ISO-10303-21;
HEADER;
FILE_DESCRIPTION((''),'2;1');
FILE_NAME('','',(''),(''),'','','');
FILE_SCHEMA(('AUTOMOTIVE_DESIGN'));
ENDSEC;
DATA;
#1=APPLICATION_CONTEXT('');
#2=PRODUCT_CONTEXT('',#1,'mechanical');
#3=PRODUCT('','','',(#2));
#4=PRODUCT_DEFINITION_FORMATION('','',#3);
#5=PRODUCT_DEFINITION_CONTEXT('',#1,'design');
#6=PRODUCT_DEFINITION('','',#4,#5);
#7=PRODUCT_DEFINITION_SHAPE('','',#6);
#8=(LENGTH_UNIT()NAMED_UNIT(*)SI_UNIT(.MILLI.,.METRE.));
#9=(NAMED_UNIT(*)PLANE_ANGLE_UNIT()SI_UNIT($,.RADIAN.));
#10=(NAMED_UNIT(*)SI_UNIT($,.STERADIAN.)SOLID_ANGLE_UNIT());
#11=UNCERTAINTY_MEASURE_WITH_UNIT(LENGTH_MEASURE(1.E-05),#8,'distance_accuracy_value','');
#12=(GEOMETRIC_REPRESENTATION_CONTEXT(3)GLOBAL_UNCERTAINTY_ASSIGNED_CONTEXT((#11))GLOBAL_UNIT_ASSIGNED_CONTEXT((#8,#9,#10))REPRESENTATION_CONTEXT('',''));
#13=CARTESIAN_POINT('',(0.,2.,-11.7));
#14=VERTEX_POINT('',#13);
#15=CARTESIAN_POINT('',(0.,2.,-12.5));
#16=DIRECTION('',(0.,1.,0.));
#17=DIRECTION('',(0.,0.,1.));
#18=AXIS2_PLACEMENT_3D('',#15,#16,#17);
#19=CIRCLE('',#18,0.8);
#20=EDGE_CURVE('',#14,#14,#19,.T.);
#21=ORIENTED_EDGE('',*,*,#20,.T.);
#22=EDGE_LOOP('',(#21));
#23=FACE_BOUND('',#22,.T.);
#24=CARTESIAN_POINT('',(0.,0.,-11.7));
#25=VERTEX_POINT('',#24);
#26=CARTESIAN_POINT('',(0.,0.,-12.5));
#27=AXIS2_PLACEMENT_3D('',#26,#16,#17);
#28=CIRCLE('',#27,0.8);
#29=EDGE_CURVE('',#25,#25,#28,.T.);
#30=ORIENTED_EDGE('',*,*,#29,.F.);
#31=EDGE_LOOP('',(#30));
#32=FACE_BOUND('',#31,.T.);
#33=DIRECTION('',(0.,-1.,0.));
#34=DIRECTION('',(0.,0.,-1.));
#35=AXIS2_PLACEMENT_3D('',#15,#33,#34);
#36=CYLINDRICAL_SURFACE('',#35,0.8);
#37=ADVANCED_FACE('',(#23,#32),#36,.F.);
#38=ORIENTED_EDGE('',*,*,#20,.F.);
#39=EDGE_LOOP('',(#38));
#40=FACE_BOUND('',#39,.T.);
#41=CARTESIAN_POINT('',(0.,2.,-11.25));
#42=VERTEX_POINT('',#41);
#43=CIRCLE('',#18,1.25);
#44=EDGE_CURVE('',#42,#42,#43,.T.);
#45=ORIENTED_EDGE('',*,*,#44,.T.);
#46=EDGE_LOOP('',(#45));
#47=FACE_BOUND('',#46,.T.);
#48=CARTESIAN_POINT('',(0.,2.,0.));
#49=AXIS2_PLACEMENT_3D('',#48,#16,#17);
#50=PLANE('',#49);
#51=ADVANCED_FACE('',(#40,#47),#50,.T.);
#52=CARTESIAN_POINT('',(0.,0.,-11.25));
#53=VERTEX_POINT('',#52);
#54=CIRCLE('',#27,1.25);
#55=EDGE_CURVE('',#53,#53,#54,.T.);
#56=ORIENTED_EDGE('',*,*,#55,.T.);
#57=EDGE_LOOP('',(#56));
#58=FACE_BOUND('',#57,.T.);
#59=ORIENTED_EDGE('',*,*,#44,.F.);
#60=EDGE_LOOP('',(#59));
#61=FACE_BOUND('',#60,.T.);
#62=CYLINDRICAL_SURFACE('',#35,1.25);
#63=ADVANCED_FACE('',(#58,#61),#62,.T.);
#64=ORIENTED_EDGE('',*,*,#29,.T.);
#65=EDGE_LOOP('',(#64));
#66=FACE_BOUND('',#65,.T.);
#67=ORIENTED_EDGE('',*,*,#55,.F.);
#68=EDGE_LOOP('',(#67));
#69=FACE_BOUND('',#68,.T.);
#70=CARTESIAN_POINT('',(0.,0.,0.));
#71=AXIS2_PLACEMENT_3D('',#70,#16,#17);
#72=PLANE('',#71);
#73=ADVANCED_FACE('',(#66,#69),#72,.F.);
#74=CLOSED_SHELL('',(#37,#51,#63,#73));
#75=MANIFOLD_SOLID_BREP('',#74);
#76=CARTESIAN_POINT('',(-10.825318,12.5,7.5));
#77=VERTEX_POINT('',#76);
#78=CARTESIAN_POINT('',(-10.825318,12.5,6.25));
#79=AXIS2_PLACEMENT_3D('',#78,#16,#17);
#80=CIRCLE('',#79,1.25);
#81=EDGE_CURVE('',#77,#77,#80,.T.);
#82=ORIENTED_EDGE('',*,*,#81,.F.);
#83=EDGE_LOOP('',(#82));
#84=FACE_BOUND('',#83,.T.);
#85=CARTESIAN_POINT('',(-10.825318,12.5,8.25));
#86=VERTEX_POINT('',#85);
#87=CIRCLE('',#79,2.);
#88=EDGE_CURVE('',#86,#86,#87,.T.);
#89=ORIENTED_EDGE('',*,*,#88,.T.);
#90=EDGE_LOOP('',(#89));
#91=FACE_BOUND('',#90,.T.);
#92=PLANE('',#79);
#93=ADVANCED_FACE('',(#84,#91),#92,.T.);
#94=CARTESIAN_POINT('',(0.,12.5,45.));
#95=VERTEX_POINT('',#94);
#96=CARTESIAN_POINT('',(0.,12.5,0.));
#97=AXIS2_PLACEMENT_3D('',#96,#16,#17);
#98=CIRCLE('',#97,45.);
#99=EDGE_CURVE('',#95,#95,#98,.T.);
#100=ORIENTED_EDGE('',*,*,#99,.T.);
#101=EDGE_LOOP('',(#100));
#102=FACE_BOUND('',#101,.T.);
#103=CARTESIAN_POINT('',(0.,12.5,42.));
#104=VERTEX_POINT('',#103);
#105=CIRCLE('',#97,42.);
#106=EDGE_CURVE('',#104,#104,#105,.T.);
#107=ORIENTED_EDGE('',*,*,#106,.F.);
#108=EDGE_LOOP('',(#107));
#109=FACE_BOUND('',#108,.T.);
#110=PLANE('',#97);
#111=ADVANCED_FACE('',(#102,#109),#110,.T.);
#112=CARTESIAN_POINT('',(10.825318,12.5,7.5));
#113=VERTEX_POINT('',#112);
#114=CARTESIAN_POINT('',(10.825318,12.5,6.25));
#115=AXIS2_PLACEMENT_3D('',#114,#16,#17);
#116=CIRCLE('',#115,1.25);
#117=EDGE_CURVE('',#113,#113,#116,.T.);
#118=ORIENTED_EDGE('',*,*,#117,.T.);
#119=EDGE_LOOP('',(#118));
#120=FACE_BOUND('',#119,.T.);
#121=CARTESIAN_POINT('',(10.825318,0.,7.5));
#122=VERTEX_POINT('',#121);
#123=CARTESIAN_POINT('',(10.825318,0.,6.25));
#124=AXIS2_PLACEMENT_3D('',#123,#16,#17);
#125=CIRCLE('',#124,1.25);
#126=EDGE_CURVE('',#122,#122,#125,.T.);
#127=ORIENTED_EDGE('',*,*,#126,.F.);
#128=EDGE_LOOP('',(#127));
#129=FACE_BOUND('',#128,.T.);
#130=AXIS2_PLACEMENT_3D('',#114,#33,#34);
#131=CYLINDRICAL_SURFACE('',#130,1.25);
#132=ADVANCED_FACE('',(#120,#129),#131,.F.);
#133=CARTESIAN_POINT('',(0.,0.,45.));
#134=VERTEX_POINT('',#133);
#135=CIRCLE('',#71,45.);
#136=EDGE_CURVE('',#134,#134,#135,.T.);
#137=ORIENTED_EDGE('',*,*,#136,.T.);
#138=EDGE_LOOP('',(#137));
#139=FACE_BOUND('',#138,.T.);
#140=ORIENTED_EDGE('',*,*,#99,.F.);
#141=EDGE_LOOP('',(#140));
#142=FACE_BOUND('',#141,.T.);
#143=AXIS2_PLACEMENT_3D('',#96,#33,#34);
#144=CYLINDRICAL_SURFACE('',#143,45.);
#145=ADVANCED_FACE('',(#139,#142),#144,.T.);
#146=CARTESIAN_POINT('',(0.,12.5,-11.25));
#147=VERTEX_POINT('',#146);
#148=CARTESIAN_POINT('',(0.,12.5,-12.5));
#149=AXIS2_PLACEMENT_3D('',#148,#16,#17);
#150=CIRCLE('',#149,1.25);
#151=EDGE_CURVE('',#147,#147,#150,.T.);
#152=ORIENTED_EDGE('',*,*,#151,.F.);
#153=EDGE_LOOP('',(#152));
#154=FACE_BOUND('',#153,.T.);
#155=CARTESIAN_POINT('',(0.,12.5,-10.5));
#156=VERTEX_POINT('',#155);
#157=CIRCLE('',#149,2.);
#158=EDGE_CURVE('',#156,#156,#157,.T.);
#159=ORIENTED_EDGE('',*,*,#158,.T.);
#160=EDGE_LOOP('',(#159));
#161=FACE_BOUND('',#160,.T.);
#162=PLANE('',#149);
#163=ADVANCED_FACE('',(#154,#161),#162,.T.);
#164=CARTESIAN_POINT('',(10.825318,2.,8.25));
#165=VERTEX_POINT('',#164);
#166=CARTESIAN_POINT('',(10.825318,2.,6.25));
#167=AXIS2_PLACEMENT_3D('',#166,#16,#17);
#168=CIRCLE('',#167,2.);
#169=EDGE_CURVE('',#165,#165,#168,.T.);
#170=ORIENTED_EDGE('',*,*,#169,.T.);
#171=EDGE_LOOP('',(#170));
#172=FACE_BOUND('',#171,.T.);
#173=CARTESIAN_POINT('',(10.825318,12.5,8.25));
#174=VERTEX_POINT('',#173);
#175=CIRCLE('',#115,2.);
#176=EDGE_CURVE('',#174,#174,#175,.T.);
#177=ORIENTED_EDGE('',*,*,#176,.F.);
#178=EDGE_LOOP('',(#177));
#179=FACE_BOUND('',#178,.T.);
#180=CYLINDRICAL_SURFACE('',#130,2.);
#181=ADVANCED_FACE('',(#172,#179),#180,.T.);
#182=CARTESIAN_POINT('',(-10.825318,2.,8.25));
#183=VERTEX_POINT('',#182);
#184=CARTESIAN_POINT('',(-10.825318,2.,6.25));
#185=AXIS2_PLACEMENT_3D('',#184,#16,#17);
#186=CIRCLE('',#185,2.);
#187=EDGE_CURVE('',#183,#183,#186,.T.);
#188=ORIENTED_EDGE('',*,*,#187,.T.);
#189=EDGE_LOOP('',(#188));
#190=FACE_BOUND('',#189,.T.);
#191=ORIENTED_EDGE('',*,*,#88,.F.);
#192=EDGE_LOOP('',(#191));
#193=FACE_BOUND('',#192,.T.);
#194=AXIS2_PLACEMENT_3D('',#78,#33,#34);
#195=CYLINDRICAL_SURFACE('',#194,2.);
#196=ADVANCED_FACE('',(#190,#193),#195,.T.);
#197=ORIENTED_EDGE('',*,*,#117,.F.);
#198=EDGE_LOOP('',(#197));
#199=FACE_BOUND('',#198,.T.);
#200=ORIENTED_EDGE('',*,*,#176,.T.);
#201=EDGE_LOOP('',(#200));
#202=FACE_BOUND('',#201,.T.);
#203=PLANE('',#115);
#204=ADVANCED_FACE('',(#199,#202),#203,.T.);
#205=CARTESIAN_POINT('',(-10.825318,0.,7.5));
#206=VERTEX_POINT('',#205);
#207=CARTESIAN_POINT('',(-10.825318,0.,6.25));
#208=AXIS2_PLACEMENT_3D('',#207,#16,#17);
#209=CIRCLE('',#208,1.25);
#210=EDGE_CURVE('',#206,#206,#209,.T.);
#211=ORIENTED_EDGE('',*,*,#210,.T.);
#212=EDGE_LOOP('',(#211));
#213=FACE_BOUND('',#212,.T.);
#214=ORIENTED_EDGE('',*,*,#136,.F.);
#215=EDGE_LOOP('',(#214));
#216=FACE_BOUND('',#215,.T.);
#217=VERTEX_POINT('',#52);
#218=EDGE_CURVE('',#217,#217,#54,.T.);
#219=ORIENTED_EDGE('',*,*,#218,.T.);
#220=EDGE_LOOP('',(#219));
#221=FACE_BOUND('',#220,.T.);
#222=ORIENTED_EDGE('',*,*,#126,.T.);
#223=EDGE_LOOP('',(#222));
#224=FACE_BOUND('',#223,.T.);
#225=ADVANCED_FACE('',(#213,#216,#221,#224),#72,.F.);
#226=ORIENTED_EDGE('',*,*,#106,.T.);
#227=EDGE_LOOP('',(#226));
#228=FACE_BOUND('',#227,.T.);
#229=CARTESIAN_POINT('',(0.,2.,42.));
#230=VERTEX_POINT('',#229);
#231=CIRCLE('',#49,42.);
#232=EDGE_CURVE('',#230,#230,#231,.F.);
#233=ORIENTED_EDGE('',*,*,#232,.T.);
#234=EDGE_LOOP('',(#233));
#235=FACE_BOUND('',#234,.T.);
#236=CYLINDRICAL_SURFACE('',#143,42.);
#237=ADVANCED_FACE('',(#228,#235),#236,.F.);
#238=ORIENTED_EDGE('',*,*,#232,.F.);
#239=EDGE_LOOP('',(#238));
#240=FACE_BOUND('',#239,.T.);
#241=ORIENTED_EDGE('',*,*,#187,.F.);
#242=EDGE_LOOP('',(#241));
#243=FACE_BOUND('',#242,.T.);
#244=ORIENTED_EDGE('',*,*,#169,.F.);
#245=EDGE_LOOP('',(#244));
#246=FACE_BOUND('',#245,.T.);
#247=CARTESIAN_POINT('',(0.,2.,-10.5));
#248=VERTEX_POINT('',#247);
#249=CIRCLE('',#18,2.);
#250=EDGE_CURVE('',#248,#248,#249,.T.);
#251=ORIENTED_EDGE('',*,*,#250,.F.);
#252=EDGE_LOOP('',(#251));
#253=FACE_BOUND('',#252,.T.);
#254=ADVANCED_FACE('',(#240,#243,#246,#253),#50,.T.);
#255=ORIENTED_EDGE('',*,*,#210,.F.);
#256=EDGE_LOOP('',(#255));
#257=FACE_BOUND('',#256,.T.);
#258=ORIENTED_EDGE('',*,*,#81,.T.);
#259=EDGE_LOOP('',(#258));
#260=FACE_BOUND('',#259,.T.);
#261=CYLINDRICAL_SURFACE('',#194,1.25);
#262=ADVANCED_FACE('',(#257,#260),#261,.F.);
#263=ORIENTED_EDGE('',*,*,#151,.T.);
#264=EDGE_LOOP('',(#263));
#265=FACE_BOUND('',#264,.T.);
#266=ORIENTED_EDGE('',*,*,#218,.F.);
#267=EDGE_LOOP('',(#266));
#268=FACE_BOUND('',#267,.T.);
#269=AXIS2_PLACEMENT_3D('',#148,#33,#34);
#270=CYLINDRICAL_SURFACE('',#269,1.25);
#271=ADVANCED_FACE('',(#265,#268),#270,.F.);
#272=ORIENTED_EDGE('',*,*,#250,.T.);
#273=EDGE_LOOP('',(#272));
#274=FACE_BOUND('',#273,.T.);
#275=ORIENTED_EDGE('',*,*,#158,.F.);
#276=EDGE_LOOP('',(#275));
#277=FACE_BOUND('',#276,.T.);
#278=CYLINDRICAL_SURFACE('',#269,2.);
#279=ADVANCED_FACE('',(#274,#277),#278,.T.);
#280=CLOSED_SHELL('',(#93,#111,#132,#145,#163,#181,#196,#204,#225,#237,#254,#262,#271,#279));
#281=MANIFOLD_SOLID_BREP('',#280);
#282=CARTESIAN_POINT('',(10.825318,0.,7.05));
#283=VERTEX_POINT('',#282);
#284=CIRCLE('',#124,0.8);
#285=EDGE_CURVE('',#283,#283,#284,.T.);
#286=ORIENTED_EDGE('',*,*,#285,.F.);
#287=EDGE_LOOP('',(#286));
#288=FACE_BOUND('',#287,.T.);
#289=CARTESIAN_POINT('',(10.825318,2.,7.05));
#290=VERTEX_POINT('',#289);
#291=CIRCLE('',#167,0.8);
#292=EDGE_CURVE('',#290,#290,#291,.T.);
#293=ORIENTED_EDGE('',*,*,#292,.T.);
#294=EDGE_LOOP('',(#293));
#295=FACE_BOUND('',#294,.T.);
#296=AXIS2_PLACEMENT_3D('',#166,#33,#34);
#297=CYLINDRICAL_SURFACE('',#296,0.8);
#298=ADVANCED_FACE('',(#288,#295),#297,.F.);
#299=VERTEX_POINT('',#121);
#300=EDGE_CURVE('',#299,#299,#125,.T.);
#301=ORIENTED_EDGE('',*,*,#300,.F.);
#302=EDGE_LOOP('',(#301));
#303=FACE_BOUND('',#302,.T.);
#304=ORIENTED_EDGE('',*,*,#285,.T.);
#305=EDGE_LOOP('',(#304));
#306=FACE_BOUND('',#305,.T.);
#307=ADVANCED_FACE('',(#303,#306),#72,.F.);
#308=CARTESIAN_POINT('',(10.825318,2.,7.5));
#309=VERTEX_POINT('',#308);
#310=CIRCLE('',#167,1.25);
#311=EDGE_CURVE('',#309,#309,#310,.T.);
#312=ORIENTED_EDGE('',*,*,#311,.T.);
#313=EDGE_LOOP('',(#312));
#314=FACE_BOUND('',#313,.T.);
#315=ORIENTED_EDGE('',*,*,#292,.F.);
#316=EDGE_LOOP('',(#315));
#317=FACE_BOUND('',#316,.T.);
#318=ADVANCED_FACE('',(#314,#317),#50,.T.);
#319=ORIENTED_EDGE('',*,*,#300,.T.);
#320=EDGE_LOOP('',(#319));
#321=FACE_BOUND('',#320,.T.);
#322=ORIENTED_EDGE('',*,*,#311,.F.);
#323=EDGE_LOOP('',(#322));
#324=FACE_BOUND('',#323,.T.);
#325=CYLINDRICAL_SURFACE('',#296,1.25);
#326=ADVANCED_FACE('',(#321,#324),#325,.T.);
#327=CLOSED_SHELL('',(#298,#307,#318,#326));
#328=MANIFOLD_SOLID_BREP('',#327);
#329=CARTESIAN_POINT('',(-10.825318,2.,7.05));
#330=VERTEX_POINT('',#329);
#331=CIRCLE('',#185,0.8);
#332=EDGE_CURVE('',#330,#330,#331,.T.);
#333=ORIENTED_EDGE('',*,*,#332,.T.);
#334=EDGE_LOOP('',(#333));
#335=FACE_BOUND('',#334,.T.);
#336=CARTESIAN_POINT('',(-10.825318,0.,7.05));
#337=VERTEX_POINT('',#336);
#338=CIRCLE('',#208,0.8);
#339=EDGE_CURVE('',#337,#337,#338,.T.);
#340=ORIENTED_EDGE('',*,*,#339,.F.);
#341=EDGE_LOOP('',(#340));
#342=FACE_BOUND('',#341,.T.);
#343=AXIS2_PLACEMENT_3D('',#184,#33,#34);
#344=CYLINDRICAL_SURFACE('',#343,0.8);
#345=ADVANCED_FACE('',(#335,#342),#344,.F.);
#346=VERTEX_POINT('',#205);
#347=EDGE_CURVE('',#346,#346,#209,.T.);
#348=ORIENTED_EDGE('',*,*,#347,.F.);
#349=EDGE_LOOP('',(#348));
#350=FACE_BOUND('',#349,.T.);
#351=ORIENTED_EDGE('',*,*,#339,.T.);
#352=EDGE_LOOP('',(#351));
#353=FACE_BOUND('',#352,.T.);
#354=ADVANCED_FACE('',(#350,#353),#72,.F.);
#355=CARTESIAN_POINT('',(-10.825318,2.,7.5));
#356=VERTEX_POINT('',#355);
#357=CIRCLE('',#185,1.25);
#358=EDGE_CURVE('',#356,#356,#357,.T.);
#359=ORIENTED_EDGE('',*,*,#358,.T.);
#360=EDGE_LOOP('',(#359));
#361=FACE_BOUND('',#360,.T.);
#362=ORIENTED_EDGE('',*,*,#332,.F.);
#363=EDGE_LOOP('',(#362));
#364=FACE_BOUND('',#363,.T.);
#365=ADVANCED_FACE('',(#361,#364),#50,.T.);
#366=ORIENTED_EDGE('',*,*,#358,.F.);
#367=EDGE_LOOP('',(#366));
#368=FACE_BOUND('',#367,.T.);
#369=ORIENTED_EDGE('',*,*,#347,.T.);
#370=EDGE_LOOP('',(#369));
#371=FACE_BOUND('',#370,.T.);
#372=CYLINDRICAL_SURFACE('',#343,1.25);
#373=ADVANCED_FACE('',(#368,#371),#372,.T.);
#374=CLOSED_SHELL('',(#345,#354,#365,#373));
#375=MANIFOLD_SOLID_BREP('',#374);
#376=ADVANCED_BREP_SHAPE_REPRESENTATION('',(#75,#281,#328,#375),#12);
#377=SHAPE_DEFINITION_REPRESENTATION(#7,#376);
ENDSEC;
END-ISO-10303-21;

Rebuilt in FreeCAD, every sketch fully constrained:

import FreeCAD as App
import Part
import Sketcher

doc = App.newDocument("Part")
body = doc.addObject("PartDesign::Body", "Body")

# Sketch on XZ plane
sketch1 = body.newObject("Sketcher::SketchObject", "Sketch")
sketch1.AttachmentSupport = (doc.getObject("XZ_Plane"), [""])
sketch1.MapMode = "FlatFace"
sketch1.addGeometry(Part.Circle(App.Vector(0, 0, 0), App.Vector(0, 0, 1), 42), False)
sketch1.addGeometry(Part.Circle(App.Vector(0, -12.5, 0), App.Vector(0, 0, 1), 2), False)
sketch1.addGeometry(Part.Circle(App.Vector(-10.8, 6.2, 0), App.Vector(0, 0, 1), 2), False)
sketch1.addGeometry(Part.Circle(App.Vector(10.8, 6.2, 0), App.Vector(0, 0, 1), 2), False)
sketch1.addConstraint(Sketcher.Constraint("Coincident", 0, 3, -1, 1))
sketch1.addConstraint(Sketcher.Constraint("Equal", 1, 2))
sketch1.addConstraint(Sketcher.Constraint("Equal", 2, 3))
sketch1.addConstraint(Sketcher.Constraint("Symmetric", 2, 3, 3, 3, -2))
sketch1.addConstraint(Sketcher.Constraint("PointOnObject", 1, 3, -2))
sketch1.addConstraint(Sketcher.Constraint("Diameter", 0, 84.0))
sketch1.addConstraint(Sketcher.Constraint("Diameter", 1, 4.0))
sketch1.addConstraint(Sketcher.Constraint("DistanceY", 1, 3, -1, 1, 12.5))
sketch1.addConstraint(Sketcher.Constraint("DistanceY", -1, 1, 2, 3, 6.25))
sketch1.addConstraint(Sketcher.Constraint("DistanceX", 2, 3, -1, 1, 10.825318))
pad1 = body.newObject("PartDesign::Pad", "Pad")
pad1.Profile = sketch1
pad1.Length = 2
pad1.Reversed = True

# Sketch on XZ plane
sketch2 = body.newObject("Sketcher::SketchObject", "Sketch001")
sketch2.AttachmentSupport = (doc.getObject("XZ_Plane"), [""])
sketch2.MapMode = "FlatFace"
sketch2.addGeometry(Part.Circle(App.Vector(0, 0, 0), App.Vector(0, 0, 1), 45), False)
sketch2.addGeometry(Part.Circle(App.Vector(0, 0, 0), App.Vector(0, 0, 1), 42), False)
sketch2.addGeometry(Part.Circle(App.Vector(-10.8, 6.2, 0), App.Vector(0, 0, 1), 2), False)
sketch2.addGeometry(Part.Circle(App.Vector(-10.8, 6.2, 0), App.Vector(0, 0, 1), 1.2), False)
sketch2.addGeometry(Part.Circle(App.Vector(10.8, 6.2, 0), App.Vector(0, 0, 1), 2), False)
sketch2.addGeometry(Part.Circle(App.Vector(10.8, 6.2, 0), App.Vector(0, 0, 1), 1.2), False)
sketch2.addGeometry(Part.Circle(App.Vector(0, -12.5, 0), App.Vector(0, 0, 1), 2), False)
sketch2.addGeometry(Part.Circle(App.Vector(0, -12.5, 0), App.Vector(0, 0, 1), 1.2), False)
sketch2.addConstraint(Sketcher.Constraint("Coincident", 0, 3, -1, 1))
sketch2.addConstraint(Sketcher.Constraint("Coincident", 1, 3, -1, 1))
sketch2.addConstraint(Sketcher.Constraint("Coincident", 3, 3, 2, 3))
sketch2.addConstraint(Sketcher.Constraint("Coincident", 5, 3, 4, 3))
sketch2.addConstraint(Sketcher.Constraint("Coincident", 7, 3, 6, 3))
sketch2.addConstraint(Sketcher.Constraint("Equal", 2, 4))
sketch2.addConstraint(Sketcher.Constraint("Equal", 3, 5))
sketch2.addConstraint(Sketcher.Constraint("Equal", 4, 6))
sketch2.addConstraint(Sketcher.Constraint("Equal", 5, 7))
sketch2.addConstraint(Sketcher.Constraint("Symmetric", 2, 3, 4, 3, -2))
sketch2.addConstraint(Sketcher.Constraint("PointOnObject", 6, 3, -2))
sketch2.addConstraint(Sketcher.Constraint("Diameter", 0, 90.0))
sketch2.addConstraint(Sketcher.Constraint("Diameter", 1, 84.0))
sketch2.addConstraint(Sketcher.Constraint("Diameter", 2, 4.0))
sketch2.addConstraint(Sketcher.Constraint("Diameter", 3, 2.5))
sketch2.addConstraint(Sketcher.Constraint("DistanceY", 6, 3, -1, 1, 12.5))
sketch2.addConstraint(Sketcher.Constraint("DistanceY", -1, 1, 2, 3, 6.25))
sketch2.addConstraint(Sketcher.Constraint("DistanceX", 2, 3, -1, 1, 10.825318))
pad2 = body.newObject("PartDesign::Pad", "Pad001")
pad2.Profile = sketch2
pad2.Length = 12.5
pad2.Reversed = True
body2 = doc.addObject("PartDesign::Body", "Body001")

# Sketch on XZ plane
sketch3 = body2.newObject("Sketcher::SketchObject", "Sketch002")
sketch3.AttachmentSupport = (doc.getObject("XZ_Plane001"), [""])
sketch3.MapMode = "FlatFace"
sketch3.addGeometry(Part.Circle(App.Vector(0, -12.5, 0), App.Vector(0, 0, 1), 1.2), False)
sketch3.addGeometry(Part.Circle(App.Vector(0, -12.5, 0), App.Vector(0, 0, 1), 0.8), False)
sketch3.addConstraint(Sketcher.Constraint("Coincident", 1, 3, 0, 3))
sketch3.addConstraint(Sketcher.Constraint("PointOnObject", 0, 3, -2))
sketch3.addConstraint(Sketcher.Constraint("Diameter", 0, 2.5))
sketch3.addConstraint(Sketcher.Constraint("Diameter", 1, 1.6))
sketch3.addConstraint(Sketcher.Constraint("DistanceY", 0, 3, -1, 1, 12.5))
pad3 = body2.newObject("PartDesign::Pad", "Pad002")
pad3.Profile = sketch3
pad3.Length = 2
pad3.Reversed = True
body3 = doc.addObject("PartDesign::Body", "Body002")

# Sketch on XZ plane
sketch4 = body3.newObject("Sketcher::SketchObject", "Sketch003")
sketch4.AttachmentSupport = (doc.getObject("XZ_Plane002"), [""])
sketch4.MapMode = "FlatFace"
sketch4.addGeometry(Part.Circle(App.Vector(10.8, 6.2, 0), App.Vector(0, 0, 1), 1.2), False)
sketch4.addGeometry(Part.Circle(App.Vector(10.8, 6.2, 0), App.Vector(0, 0, 1), 0.8), False)
sketch4.addConstraint(Sketcher.Constraint("Coincident", 1, 3, 0, 3))
sketch4.addConstraint(Sketcher.Constraint("Diameter", 0, 2.5))
sketch4.addConstraint(Sketcher.Constraint("Diameter", 1, 1.6))
sketch4.addConstraint(Sketcher.Constraint("DistanceY", -1, 1, 0, 3, 6.25))
sketch4.addConstraint(Sketcher.Constraint("DistanceX", -1, 1, 0, 3, 10.825318))
pad4 = body3.newObject("PartDesign::Pad", "Pad003")
pad4.Profile = sketch4
pad4.Length = 2
pad4.Reversed = True
body4 = doc.addObject("PartDesign::Body", "Body003")

# Sketch on XZ plane
sketch5 = body4.newObject("Sketcher::SketchObject", "Sketch004")
sketch5.AttachmentSupport = (doc.getObject("XZ_Plane003"), [""])
sketch5.MapMode = "FlatFace"
sketch5.addGeometry(Part.Circle(App.Vector(-10.8, 6.2, 0), App.Vector(0, 0, 1), 1.2), False)
sketch5.addGeometry(Part.Circle(App.Vector(-10.8, 6.2, 0), App.Vector(0, 0, 1), 0.8), False)
sketch5.addConstraint(Sketcher.Constraint("Coincident", 1, 3, 0, 3))
sketch5.addConstraint(Sketcher.Constraint("Diameter", 0, 2.5))
sketch5.addConstraint(Sketcher.Constraint("Diameter", 1, 1.6))
sketch5.addConstraint(Sketcher.Constraint("DistanceY", -1, 1, 0, 3, 6.25))
sketch5.addConstraint(Sketcher.Constraint("DistanceX", 0, 3, -1, 1, 10.825318))
pad5 = body4.newObject("PartDesign::Pad", "Pad004")
pad5.Profile = sketch5
pad5.Length = 2
pad5.Reversed = True

doc.recompute()
